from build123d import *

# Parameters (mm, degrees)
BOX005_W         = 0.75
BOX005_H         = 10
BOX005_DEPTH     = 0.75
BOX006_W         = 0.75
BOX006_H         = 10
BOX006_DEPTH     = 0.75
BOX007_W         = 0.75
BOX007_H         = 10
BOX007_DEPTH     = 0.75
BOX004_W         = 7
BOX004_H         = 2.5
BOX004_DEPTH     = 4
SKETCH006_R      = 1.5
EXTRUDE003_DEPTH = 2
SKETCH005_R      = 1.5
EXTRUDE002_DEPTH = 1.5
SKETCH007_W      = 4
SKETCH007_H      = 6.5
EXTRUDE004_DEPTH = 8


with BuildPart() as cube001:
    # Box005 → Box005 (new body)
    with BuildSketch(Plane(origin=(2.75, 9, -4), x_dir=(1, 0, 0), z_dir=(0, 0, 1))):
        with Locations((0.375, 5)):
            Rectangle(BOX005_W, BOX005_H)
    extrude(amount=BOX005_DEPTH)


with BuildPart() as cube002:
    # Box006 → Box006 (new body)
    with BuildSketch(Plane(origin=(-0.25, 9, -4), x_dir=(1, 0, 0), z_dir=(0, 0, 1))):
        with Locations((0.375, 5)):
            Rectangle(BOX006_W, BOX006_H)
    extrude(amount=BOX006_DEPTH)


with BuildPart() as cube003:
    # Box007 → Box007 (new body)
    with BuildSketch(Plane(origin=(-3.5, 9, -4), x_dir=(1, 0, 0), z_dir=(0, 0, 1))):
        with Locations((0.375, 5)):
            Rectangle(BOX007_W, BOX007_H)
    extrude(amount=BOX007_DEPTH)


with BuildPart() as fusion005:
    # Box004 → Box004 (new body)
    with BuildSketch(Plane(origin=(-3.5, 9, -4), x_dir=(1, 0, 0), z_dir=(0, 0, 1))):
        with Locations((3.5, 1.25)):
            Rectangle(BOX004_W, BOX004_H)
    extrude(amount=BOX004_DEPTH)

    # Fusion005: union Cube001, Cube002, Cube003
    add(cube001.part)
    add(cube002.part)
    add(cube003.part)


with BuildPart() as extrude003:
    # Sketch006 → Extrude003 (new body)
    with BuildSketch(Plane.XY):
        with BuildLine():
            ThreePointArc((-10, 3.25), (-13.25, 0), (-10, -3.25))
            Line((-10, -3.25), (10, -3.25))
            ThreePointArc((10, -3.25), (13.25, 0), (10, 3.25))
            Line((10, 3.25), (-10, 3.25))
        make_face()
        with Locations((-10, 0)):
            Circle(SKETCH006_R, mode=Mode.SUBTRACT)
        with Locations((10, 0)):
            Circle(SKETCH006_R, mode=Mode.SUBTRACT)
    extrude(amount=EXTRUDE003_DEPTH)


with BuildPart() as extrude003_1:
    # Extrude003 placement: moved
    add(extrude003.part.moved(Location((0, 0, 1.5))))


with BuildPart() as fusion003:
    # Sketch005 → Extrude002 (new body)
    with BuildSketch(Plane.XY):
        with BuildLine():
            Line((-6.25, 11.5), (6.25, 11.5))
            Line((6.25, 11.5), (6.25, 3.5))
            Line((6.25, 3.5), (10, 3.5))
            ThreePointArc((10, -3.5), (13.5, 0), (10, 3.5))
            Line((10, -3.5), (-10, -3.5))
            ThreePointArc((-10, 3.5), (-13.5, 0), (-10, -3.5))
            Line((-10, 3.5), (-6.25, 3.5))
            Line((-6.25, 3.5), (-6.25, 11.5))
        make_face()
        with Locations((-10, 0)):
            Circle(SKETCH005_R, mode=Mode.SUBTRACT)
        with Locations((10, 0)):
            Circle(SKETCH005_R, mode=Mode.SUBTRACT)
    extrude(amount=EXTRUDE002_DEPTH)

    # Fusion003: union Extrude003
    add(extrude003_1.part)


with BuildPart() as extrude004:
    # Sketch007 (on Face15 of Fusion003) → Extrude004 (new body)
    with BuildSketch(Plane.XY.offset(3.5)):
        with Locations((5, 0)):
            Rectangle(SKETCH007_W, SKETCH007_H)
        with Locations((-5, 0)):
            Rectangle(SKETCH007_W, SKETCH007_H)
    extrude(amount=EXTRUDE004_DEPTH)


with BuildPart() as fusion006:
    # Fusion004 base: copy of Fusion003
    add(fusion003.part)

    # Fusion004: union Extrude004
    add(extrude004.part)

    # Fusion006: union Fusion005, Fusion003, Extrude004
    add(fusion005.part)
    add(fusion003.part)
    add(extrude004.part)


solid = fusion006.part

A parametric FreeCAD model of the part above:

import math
import FreeCAD as App
import Part
import Sketcher

doc = App.newDocument("Part")
body = doc.addObject("PartDesign::Body", "Body")

# Sketch on XY plane
sketch1 = body.newObject("Sketcher::SketchObject", "Sketch")
sketch1.AttachmentSupport = (doc.getObject("XY_Plane"), [""])
sketch1.MapMode = "FlatFace"
sketch1.AttachmentOffset = App.Placement(App.Vector(0, 0, -4), App.Rotation())
sketch1.addGeometry([
    Part.LineSegment(App.Vector(2.8, 19, 0), App.Vector(2.8, 9, 0)),
    Part.LineSegment(App.Vector(2.8, 9, 0), App.Vector(3.5, 9, 0)),
    Part.LineSegment(App.Vector(3.5, 9, 0), App.Vector(3.5, 19, 0)),
    Part.LineSegment(App.Vector(3.5, 19, 0), App.Vector(2.8, 19, 0)),
], False)
sketch1.addConstraint([
    Sketcher.Constraint("Coincident", 0, 2, 1, 1),
    Sketcher.Constraint("Coincident", 1, 2, 2, 1),
    Sketcher.Constraint("Coincident", 2, 2, 3, 1),
    Sketcher.Constraint("Coincident", 3, 2, 0, 1),
    Sketcher.Constraint("Vertical", 0),
    Sketcher.Constraint("Horizontal", 1),
    Sketcher.Constraint("Vertical", 2),
    Sketcher.Constraint("Horizontal", 3),
    Sketcher.Constraint("DistanceY", 0, 2, 0, 1, 10.0),
    Sketcher.Constraint("DistanceY", -1, 1, 0, 2, 9.0),
    Sketcher.Constraint("DistanceX", 1, 1, 1, 2, 0.75),
    Sketcher.Constraint("DistanceX", -1, 1, 1, 2, 3.5),
])
pad1 = body.newObject("PartDesign::Pad", "Pad")
pad1.Profile = sketch1
pad1.Length = 0.75
body2 = doc.addObject("PartDesign::Body", "Body001")

# Sketch on XY plane
sketch2 = body2.newObject("Sketcher::SketchObject", "Sketch001")
sketch2.AttachmentSupport = (doc.getObject("XY_Plane001"), [""])
sketch2.MapMode = "FlatFace"
sketch2.AttachmentOffset = App.Placement(App.Vector(0, 0, -4), App.Rotation())
sketch2.addGeometry([
    Part.LineSegment(App.Vector(-0.2, 19, 0), App.Vector(-0.2, 9, 0)),
    Part.LineSegment(App.Vector(-0.2, 9, 0), App.Vector(0.5, 9, 0)),
    Part.LineSegment(App.Vector(0.5, 9, 0), App.Vector(0.5, 19, 0)),
    Part.LineSegment(App.Vector(0.5, 19, 0), App.Vector(-0.2, 19, 0)),
], False)
sketch2.addConstraint([
    Sketcher.Constraint("Coincident", 0, 2, 1, 1),
    Sketcher.Constraint("Coincident", 1, 2, 2, 1),
    Sketcher.Constraint("Coincident", 2, 2, 3, 1),
    Sketcher.Constraint("Coincident", 3, 2, 0, 1),
    Sketcher.Constraint("Vertical", 0),
    Sketcher.Constraint("Horizontal", 1),
    Sketcher.Constraint("Vertical", 2),
    Sketcher.Constraint("Horizontal", 3),
    Sketcher.Constraint("DistanceY", 0, 2, 0, 1, 10.0),
    Sketcher.Constraint("DistanceY", -1, 1, 0, 2, 9.0),
    Sketcher.Constraint("DistanceX", 1, 1, 1, 2, 0.75),
    Sketcher.Constraint("DistanceX", -1, 1, 1, 2, 0.5),
])
pad2 = body2.newObject("PartDesign::Pad", "Pad001")
pad2.Profile = sketch2
pad2.Length = 0.75
body3 = doc.addObject("PartDesign::Body", "Body002")

# Sketch on XY plane
sketch3 = body3.newObject("Sketcher::SketchObject", "Sketch002")
sketch3.AttachmentSupport = (doc.getObject("XY_Plane002"), [""])
sketch3.MapMode = "FlatFace"
sketch3.AttachmentOffset = App.Placement(App.Vector(0, 0, -4), App.Rotation())
sketch3.addGeometry([
    Part.LineSegment(App.Vector(-3.5, 19, 0), App.Vector(-3.5, 9, 0)),
    Part.LineSegment(App.Vector(-3.5, 9, 0), App.Vector(-2.8, 9, 0)),
    Part.LineSegment(App.Vector(-2.8, 9, 0), App.Vector(-2.8, 19, 0)),
    Part.LineSegment(App.Vector(-2.8, 19, 0), App.Vector(-3.5, 19, 0)),
], False)
sketch3.addConstraint([
    Sketcher.Constraint("Coincident", 0, 2, 1, 1),
    Sketcher.Constraint("Coincident", 1, 2, 2, 1),
    Sketcher.Constraint("Coincident", 2, 2, 3, 1),
    Sketcher.Constraint("Coincident", 3, 2, 0, 1),
    Sketcher.Constraint("Vertical", 0),
    Sketcher.Constraint("Horizontal", 1),
    Sketcher.Constraint("Vertical", 2),
    Sketcher.Constraint("Horizontal", 3),
    Sketcher.Constraint("DistanceY", 0, 2, 0, 1, 10.0),
    Sketcher.Constraint("DistanceY", -1, 1, 0, 2, 9.0),
    Sketcher.Constraint("DistanceX", 1, 1, 1, 2, 0.75),
    Sketcher.Constraint("DistanceX", 0, 2, -1, 1, 3.5),
])
pad3 = body3.newObject("PartDesign::Pad", "Pad002")
pad3.Profile = sketch3
pad3.Length = 0.75
body4 = doc.addObject("PartDesign::Body", "Body003")

# Sketch on XY plane
sketch4 = body4.newObject("Sketcher::SketchObject", "Sketch003")
sketch4.AttachmentSupport = (doc.getObject("XY_Plane003"), [""])
sketch4.MapMode = "FlatFace"
sketch4.AttachmentOffset = App.Placement(App.Vector(0, 0, -4), App.Rotation())
sketch4.addGeometry([
    Part.LineSegment(App.Vector(-3.5, 11.5, 0), App.Vector(-3.5, 9, 0)),
    Part.LineSegment(App.Vector(-3.5, 9, 0), App.Vector(3.5, 9, 0)),
    Part.LineSegment(App.Vector(3.5, 9, 0), App.Vector(3.5, 11.5, 0)),
    Part.LineSegment(App.Vector(3.5, 11.5, 0), App.Vector(-3.5, 11.5, 0)),
], False)
sketch4.addConstraint([
    Sketcher.Constraint("Coincident", 0, 2, 1, 1),
    Sketcher.Constraint("Coincident", 1, 2, 2, 1),
    Sketcher.Constraint("Coincident", 2, 2, 3, 1),
    Sketcher.Constraint("Coincident", 3, 2, 0, 1),
    Sketcher.Constraint("Vertical", 0),
    Sketcher.Constraint("Horizontal", 1),
    Sketcher.Constraint("Vertical", 2),
    Sketcher.Constraint("Horizontal", 3),
    Sketcher.Constraint("DistanceX", 1, 1, 1, 2, 7.0),
    Sketcher.Constraint("DistanceY", 0, 2, 0, 1, 2.5),
    Sketcher.Constraint("DistanceY", -1, 1, 0, 2, 9.0),
    Sketcher.Constraint("DistanceX", 0, 2, -1, 1, 3.5),
])
pad4 = body4.newObject("PartDesign::Pad", "Pad003")
pad4.Profile = sketch4
pad4.Length = 4
doc.recompute()

boolean = body4.newObject("PartDesign::Boolean", "Boolean")
boolean.Type = "Fuse"
boolean.addObjects([body])
doc.recompute()

boolean2 = body4.newObject("PartDesign::Boolean", "Boolean001")
boolean2.Type = "Fuse"
boolean2.addObjects([body2])
doc.recompute()

boolean3 = body4.newObject("PartDesign::Boolean", "Boolean002")
boolean3.Type = "Fuse"
boolean3.addObjects([body3])
body5 = doc.addObject("PartDesign::Body", "Body004")

# Sketch on XY plane
sketch5 = body5.newObject("Sketcher::SketchObject", "Sketch004")
sketch5.AttachmentSupport = (doc.getObject("XY_Plane004"), [""])
sketch5.MapMode = "FlatFace"
sketch5.addGeometry([
    Part.ArcOfCircle(Part.Circle(App.Vector(-10, 0, 0), App.Vector(0, 0, 1), 3.2), math.radians(90), math.radians(270)),  # 0
    Part.LineSegment(App.Vector(-10, -3.2, 0), App.Vector(10, -3.2, 0)),  # 1
    Part.ArcOfCircle(Part.Circle(App.Vector(10, 0, 0), App.Vector(0, 0, 1), 3.2), math.radians(-90), math.radians(90)),  # 2
    Part.LineSegment(App.Vector(10, 3.2, 0), App.Vector(-10, 3.2, 0)),  # 3
    Part.Circle(App.Vector(-10, 0, 0), App.Vector(0, 0, 1), 1.5),  # 4
    Part.Circle(App.Vector(10, 0, 0), App.Vector(0, 0, 1), 1.5),  # 5
], False)
sketch5.addConstraint([
    Sketcher.Constraint("Tangent", 0, 2, 1, 1),
    Sketcher.Constraint("Tangent", 1, 2, 2, 1),
    Sketcher.Constraint("Tangent", 2, 2, 3, 1),
    Sketcher.Constraint("Tangent", 3, 2, 0, 1),
    Sketcher.Constraint("Horizontal", 1),
    Sketcher.Constraint("Horizontal", 3),
    Sketcher.Constraint("Coincident", 4, 3, 0, 3),
    Sketcher.Constraint("Coincident", 5, 3, 2, 3),
    Sketcher.Constraint("Equal", 4, 5),
    Sketcher.Constraint("Symmetric", 0, 3, 2, 3, -1, 1),
    Sketcher.Constraint("Diameter", 4, 3.0),
    Sketcher.Constraint("DistanceX", 1, 1, 1, 2, 20.0),
    Sketcher.Constraint("Radius", 0, 3.25),
])
pad5 = body5.newObject("PartDesign::Pad", "Pad004")
pad5.Profile = sketch5
pad5.Length = 2
body6 = doc.addObject("PartDesign::Body", "Body005")
doc.recompute()

body5.Placement = App.Placement(App.Vector(0, 0, 1.5), App.Rotation(App.Vector(0, 0, 1), 0))
boolean4 = body6.newObject("PartDesign::Boolean", "Boolean003")
boolean4.Type = "Fuse"
boolean4.addObjects([body5])
body7 = doc.addObject("PartDesign::Body", "Body006")

# Sketch on XY plane
sketch6 = body7.newObject("Sketcher::SketchObject", "Sketch005")
sketch6.AttachmentSupport = (doc.getObject("XY_Plane006"), [""])
sketch6.MapMode = "FlatFace"
sketch6.addGeometry([
    Part.LineSegment(App.Vector(6.2, 11.5, 0), App.Vector(-6.2, 11.5, 0)),  # 0
    Part.LineSegment(App.Vector(-6.2, 11.5, 0), App.Vector(-6.2, 3.5, 0)),  # 1
    Part.LineSegment(App.Vector(-6.2, 3.5, 0), App.Vector(-10, 3.5, 0)),  # 2
    Part.ArcOfCircle(Part.Circle(App.Vector(-10, 0, 0), App.Vector(0, 0, 1), 3.5), math.radians(90), math.radians(270)),  # 3
    Part.LineSegment(App.Vector(-10, -3.5, 0), App.Vector(10, -3.5, 0)),  # 4
    Part.ArcOfCircle(Part.Circle(App.Vector(10, 0, 0), App.Vector(0, 0, 1), 3.5), math.radians(-90), math.radians(90)),  # 5
    Part.LineSegment(App.Vector(10, 3.5, 0), App.Vector(6.2, 3.5, 0)),  # 6
    Part.LineSegment(App.Vector(6.2, 3.5, 0), App.Vector(6.2, 11.5, 0)),  # 7
    Part.Circle(App.Vector(10, 0, 0), App.Vector(0, 0, 1), 1.5),  # 8
    Part.Circle(App.Vector(-10, 0, 0), App.Vector(0, 0, 1), 1.5),  # 9
], False)
sketch6.addConstraint([
    Sketcher.Constraint("Coincident", 0, 2, 1, 1),
    Sketcher.Constraint("Coincident", 1, 2, 2, 1),
    Sketcher.Constraint("Tangent", 2, 2, 3, 1),
    Sketcher.Constraint("Tangent", 3, 2, 4, 1),
    Sketcher.Constraint("Tangent", 4, 2, 5, 1),
    Sketcher.Constraint("Tangent", 5, 2, 6, 1),
    Sketcher.Constraint("Coincident", 6, 2, 7, 1),
    Sketcher.Constraint("Coincident", 7, 2, 0, 1),
    Sketcher.Constraint("Horizontal", 0),
    Sketcher.Constraint("Vertical", 1),
    Sketcher.Constraint("Horizontal", 2),
    Sketcher.Constraint("Horizontal", 4),
    Sketcher.Constraint("Horizontal", 6),
    Sketcher.Constraint("Vertical", 7),
    Sketcher.Constraint("Coincident", 8, 3, 5, 3),
    Sketcher.Constraint("Coincident", 9, 3, 3, 3),
    Sketcher.Constraint("Equal", 3, 5),
    Sketcher.Constraint("Equal", 8, 9),
    Sketcher.Constraint("Symmetric", 3, 3, 5, 3, -1, 1),
    Sketcher.Constraint("Equal", 2, 6),
    Sketcher.Constraint("Diameter", 8, 3.0),
    Sketcher.Constraint("Radius", 3, 3.5),
    Sketcher.Constraint("DistanceX", 4, 1, 4, 2, 20.0),
    Sketcher.Constraint("DistanceY", 1, 2, 1, 1, 8.0),
    Sketcher.Constraint("DistanceX", 0, 2, 0, 1, 12.5),
])
pad6 = body7.newObject("PartDesign::Pad", "Pad005")
pad6.Profile = sketch6
pad6.Length = 1.5
doc.recompute()

boolean5 = body7.newObject("PartDesign::Boolean", "Boolean004")
boolean5.Type = "Fuse"
boolean5.addObjects([body6])
body8 = doc.addObject("PartDesign::Body", "Body007")
body8.AllowCompound = True

# Sketch on XY plane
sketch7 = body8.newObject("Sketcher::SketchObject", "Sketch006")
sketch7.AttachmentSupport = (doc.getObject("XY_Plane007"), [""])
sketch7.MapMode = "FlatFace"
sketch7.AttachmentOffset = App.Placement(App.Vector(0, 0, 3.5), App.Rotation())
sketch7.addGeometry([
    Part.LineSegment(App.Vector(3, 3.2, 0), App.Vector(3, -3.2, 0)),  # 0
    Part.LineSegment(App.Vector(3, -3.2, 0), App.Vector(7, -3.2, 0)),  # 1
    Part.LineSegment(App.Vector(7, -3.2, 0), App.Vector(7, 3.2, 0)),  # 2
    Part.LineSegment(App.Vector(7, 3.2, 0), App.Vector(3, 3.2, 0)),  # 3
    Part.LineSegment(App.Vector(-7, 3.2, 0), App.Vector(-7, -3.2, 0)),  # 4
    Part.LineSegment(App.Vector(-7, -3.2, 0), App.Vector(-3, -3.2, 0)),  # 5
    Part.LineSegment(App.Vector(-3, -3.2, 0), App.Vector(-3, 3.2, 0)),  # 6
    Part.LineSegment(App.Vector(-3, 3.2, 0), App.Vector(-7, 3.2, 0)),  # 7
], False)
sketch7.addConstraint([
    Sketcher.Constraint("Coincident", 0, 2, 1, 1),
    Sketcher.Constraint("Coincident", 1, 2, 2, 1),
    Sketcher.Constraint("Coincident", 2, 2, 3, 1),
    Sketcher.Constraint("Coincident", 3, 2, 0, 1),
    Sketcher.Constraint("Coincident", 4, 2, 5, 1),
    Sketcher.Constraint("Coincident", 5, 2, 6, 1),
    Sketcher.Constraint("Coincident", 6, 2, 7, 1),
    Sketcher.Constraint("Coincident", 7, 2, 4, 1),
    Sketcher.Constraint("Vertical", 0),
    Sketcher.Constraint("Horizontal", 1),
    Sketcher.Constraint("Vertical", 2),
    Sketcher.Constraint("Horizontal", 3),
    Sketcher.Constraint("Vertical", 4),
    Sketcher.Constraint("Horizontal", 5),
    Sketcher.Constraint("Vertical", 6),
    Sketcher.Constraint("Horizontal", 7),
    Sketcher.Constraint("Symmetric", 2, 2, 4, 2, -1, 1),
    Sketcher.Constraint("Symmetric", 0, 2, 6, 2, -1, 1),
    Sketcher.Constraint("Horizontal", 1, 2, 4, 2),
    Sketcher.Constraint("DistanceX", 1, 1, 1, 2, 4.0),
    Sketcher.Constraint("DistanceY", 0, 2, 0, 1, 6.5),
    Sketcher.Constraint("DistanceX", -1, 1, 0, 2, 3.0),
])
pad7 = body8.newObject("PartDesign::Pad", "Pad006")
pad7.Profile = sketch7
pad7.Length = 8
body9 = doc.addObject("PartDesign::Body", "Body008")
doc.recompute()

body9.BaseFeature = body7
doc.recompute()

body10 = doc.addObject("PartDesign::Body", "Body009")
body10.BaseFeature = body8
boolean6 = body9.newObject("PartDesign::Boolean", "Boolean005")
boolean6.Type = "Fuse"
boolean6.addObjects([body10])
doc.recompute()

boolean7 = body9.newObject("PartDesign::Boolean", "Boolean006")
boolean7.Type = "Fuse"
boolean7.addObjects([body4])
doc.recompute()

boolean8 = body9.newObject("PartDesign::Boolean", "Boolean007")
boolean8.Type = "Fuse"
boolean8.addObjects([body7])
doc.recompute()

boolean9 = body9.newObject("PartDesign::Boolean", "Boolean008")
boolean9.Type = "Fuse"
boolean9.addObjects([body8])

doc.recompute()
